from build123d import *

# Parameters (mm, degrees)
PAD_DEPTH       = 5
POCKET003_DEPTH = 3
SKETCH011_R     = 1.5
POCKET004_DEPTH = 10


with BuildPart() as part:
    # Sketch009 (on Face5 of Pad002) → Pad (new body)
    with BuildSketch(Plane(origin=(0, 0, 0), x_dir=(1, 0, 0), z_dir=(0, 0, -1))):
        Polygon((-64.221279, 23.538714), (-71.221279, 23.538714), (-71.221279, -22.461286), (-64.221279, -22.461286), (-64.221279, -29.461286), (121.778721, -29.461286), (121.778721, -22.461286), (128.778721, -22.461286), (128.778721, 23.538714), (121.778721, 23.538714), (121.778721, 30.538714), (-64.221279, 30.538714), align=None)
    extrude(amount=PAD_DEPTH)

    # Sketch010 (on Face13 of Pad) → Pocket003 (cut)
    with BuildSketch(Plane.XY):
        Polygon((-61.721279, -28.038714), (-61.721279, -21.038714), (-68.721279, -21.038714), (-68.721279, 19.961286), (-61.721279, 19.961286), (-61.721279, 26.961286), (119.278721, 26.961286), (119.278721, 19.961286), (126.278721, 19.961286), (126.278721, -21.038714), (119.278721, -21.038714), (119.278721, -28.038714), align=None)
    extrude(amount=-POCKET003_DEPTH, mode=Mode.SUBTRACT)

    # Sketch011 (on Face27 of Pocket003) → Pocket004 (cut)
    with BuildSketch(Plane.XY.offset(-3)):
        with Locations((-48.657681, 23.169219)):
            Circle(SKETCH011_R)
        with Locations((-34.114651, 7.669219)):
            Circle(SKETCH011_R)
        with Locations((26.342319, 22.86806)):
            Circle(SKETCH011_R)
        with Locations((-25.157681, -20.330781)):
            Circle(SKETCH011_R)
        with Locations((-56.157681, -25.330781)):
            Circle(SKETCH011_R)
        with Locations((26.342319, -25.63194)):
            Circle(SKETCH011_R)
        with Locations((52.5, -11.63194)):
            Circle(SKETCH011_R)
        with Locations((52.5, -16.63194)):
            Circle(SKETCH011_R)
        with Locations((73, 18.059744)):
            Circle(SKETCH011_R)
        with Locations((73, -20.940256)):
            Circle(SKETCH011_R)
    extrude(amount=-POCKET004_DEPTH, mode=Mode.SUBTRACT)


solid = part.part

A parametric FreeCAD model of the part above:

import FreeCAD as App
import Part
import Sketcher
from FreeCAD import Vector


def add_polygon(sketch, points):
    """Adds a closed chain of lines whose ends are joined by coincident constraints."""
    first, n = sketch.GeometryCount, len(points)
    for a, b in zip(points, points[1:] + points[:1]):
        sketch.addGeometry(Part.LineSegment(App.Vector(*a, 0), App.Vector(*b, 0)), False)
    for i in range(n):
        sketch.addConstraint(Sketcher.Constraint("Coincident", first + i, 2, first + (i + 1) % n, 1))

doc = App.newDocument("Part")
body = doc.addObject("PartDesign::Body", "Body")

# Sketch on XY plane
sketch1 = doc.addObject("Sketcher::SketchObject", "Sketch")
body.addObject(sketch1)
sketch1.AttachmentSupport = (doc.XY_Plane, [""])
sketch1.MapMode = "FlatFace"
add_polygon(sketch1, [(-64.221279, -23.538714), (-71.221279, -23.538714), (-71.221279, 22.461286), (-64.221279, 22.461286), (-64.221279, 29.461286), (121.778721, 29.461286), (121.778721, 22.461286), (128.778721, 22.461286), (128.778721, -23.538714), (121.778721, -23.538714), (121.778721, -30.538714), (-64.221279, -30.538714)])  # lines 0-11
sketch1.addConstraint(Sketcher.Constraint("Horizontal", 0))
sketch1.addConstraint(Sketcher.Constraint("Vertical", 1))
sketch1.addConstraint(Sketcher.Constraint("Horizontal", 2))
sketch1.addConstraint(Sketcher.Constraint("Vertical", 3))
sketch1.addConstraint(Sketcher.Constraint("Horizontal", 4))
sketch1.addConstraint(Sketcher.Constraint("Vertical", 5))
sketch1.addConstraint(Sketcher.Constraint("Horizontal", 6))
sketch1.addConstraint(Sketcher.Constraint("Vertical", 7))
sketch1.addConstraint(Sketcher.Constraint("Horizontal", 8))
sketch1.addConstraint(Sketcher.Constraint("Vertical", 9))
sketch1.addConstraint(Sketcher.Constraint("Horizontal", 10))
sketch1.addConstraint(Sketcher.Constraint("Vertical", 11))
sketch1.addConstraint(Sketcher.Constraint("Horizontal", 2, 2, 5, 2))
sketch1.addConstraint(Sketcher.Constraint("Horizontal", 0, 2, 7, 2))
sketch1.addConstraint(Sketcher.Constraint("Vertical", 5, 2, 8, 2))
sketch1.addConstraint(Sketcher.Constraint("Vertical", 3, 2, 10, 2))
sketch1.addConstraint(Sketcher.Constraint("Equal", 2, 6))
sketch1.addConstraint(Sketcher.Constraint("Equal", 8, 3))
sketch1.addConstraint(Sketcher.Constraint("Equal", 5, 9))
sketch1.addConstraint(Sketcher.Constraint("DistanceX", 0, 2, 0, 1, 7.0))
sketch1.addConstraint(Sketcher.Constraint("DistanceX", 4, 1, 4, 2, 186.0))
sketch1.addConstraint(Sketcher.Constraint("DistanceY", 1, 1, 1, 2, 46.0))
sketch1.addConstraint(Sketcher.Constraint("DistanceX", 0, 2, -1, 1, 71.221279))
sketch1.addConstraint(Sketcher.Constraint("DistanceY", 0, 2, -1, 1, 23.538714))
pad1 = doc.addObject("PartDesign::Pad", "Pad")
body.addObject(pad1)
pad1.Profile = sketch1
pad1.Length = 5
pad1.Reversed = True

# Sketch on XY plane
sketch2 = doc.addObject("Sketcher::SketchObject", "Sketch001")
body.addObject(sketch2)
sketch2.AttachmentSupport = (doc.XY_Plane, [""])
sketch2.MapMode = "FlatFace"
add_polygon(sketch2, [(-61.721279, -21.038714), (-61.721279, -28.038714), (119.278721, -28.038714), (119.278721, -21.038714), (126.278721, -21.038714), (126.278721, 19.961286), (119.278721, 19.961286), (119.278721, 26.961286), (-61.721279, 26.961286), (-61.721279, 19.961286), (-68.721279, 19.961286), (-68.721279, -21.038714)])  # lines 0-11
sketch2.addConstraint(Sketcher.Constraint("Vertical", 0))
sketch2.addConstraint(Sketcher.Constraint("Horizontal", 1))
sketch2.addConstraint(Sketcher.Constraint("Vertical", 2))
sketch2.addConstraint(Sketcher.Constraint("Horizontal", 3))
sketch2.addConstraint(Sketcher.Constraint("Vertical", 4))
sketch2.addConstraint(Sketcher.Constraint("Horizontal", 5))
sketch2.addConstraint(Sketcher.Constraint("Vertical", 6))
sketch2.addConstraint(Sketcher.Constraint("Horizontal", 7))
sketch2.addConstraint(Sketcher.Constraint("Vertical", 8))
sketch2.addConstraint(Sketcher.Constraint("Horizontal", 9))
sketch2.addConstraint(Sketcher.Constraint("Vertical", 10))
sketch2.addConstraint(Sketcher.Constraint("Horizontal", 11))
sketch2.addConstraint(Sketcher.Constraint("Horizontal", 5, 2, 8, 2))
sketch2.addConstraint(Sketcher.Constraint("Horizontal", 3, 2, 10, 2))
sketch2.addConstraint(Sketcher.Constraint("Vertical", 2, 2, 5, 2))
sketch2.addConstraint(Sketcher.Constraint("Vertical", 0, 2, 7, 2))
sketch2.addConstraint(Sketcher.Constraint("Equal", 5, 9))
sketch2.addConstraint(Sketcher.Constraint("Equal", 11, 0))
sketch2.addConstraint(Sketcher.Constraint("Equal", 2, 6))
sketch2.addConstraint(Sketcher.Constraint("DistanceX", 1, 1, 1, 2, 181.0))
sketch2.addConstraint(Sketcher.Constraint("DistanceX", 3, 1, 3, 2, 7.0))
sketch2.addConstraint(Sketcher.Constraint("DistanceY", 4, 1, 4, 2, 41.0))
sketch2.addConstraint(Sketcher.Constraint("DistanceX", 0, 2, -1, 1, 61.721279))
sketch2.addConstraint(Sketcher.Constraint("DistanceY", 0, 2, -1, 1, 28.038714))
pocket1 = doc.addObject("PartDesign::Pocket", "Pocket")
body.addObject(pocket1)
pocket1.Profile = sketch2
pocket1.Length = 3

# Sketch on XY plane
sketch3 = doc.addObject("Sketcher::SketchObject", "Sketch002")
body.addObject(sketch3)
sketch3.AttachmentSupport = (doc.XY_Plane, [""])
sketch3.MapMode = "FlatFace"
sketch3.AttachmentOffset = App.Placement(Vector(0, 0, -3), App.Rotation())
sketch3.addGeometry(Part.Circle(Vector(-48.657681, 23.169219, 0), Vector(0, 0, 1), 1.5), False)
sketch3.addGeometry(Part.Circle(Vector(-34.114651, 7.669219, 0), Vector(0, 0, 1), 1.5), False)
sketch3.addGeometry(Part.Circle(Vector(26.342319, 22.86806, 0), Vector(0, 0, 1), 1.5), False)
sketch3.addGeometry(Part.Circle(Vector(-25.157681, -20.330781, 0), Vector(0, 0, 1), 1.5), False)
sketch3.addGeometry(Part.Circle(Vector(-56.157681, -25.330781, 0), Vector(0, 0, 1), 1.5), False)
sketch3.addGeometry(Part.Circle(Vector(26.342319, -25.63194, 0), Vector(0, 0, 1), 1.5), False)
sketch3.addGeometry(Part.Circle(Vector(52.5, -11.63194, 0), Vector(0, 0, 1), 1.5), False)
sketch3.addGeometry(Part.Circle(Vector(52.5, -16.63194, 0), Vector(0, 0, 1), 1.5), False)
sketch3.addGeometry(Part.Circle(Vector(73, 18.059744, 0), Vector(0, 0, 1), 1.5), False)
sketch3.addGeometry(Part.Circle(Vector(73, -20.940256, 0), Vector(0, 0, 1), 1.5), False)
sketch3.addConstraint(Sketcher.Constraint("Equal", 0, 1))
sketch3.addConstraint(Sketcher.Constraint("Equal", 1, 2))
sketch3.addConstraint(Sketcher.Constraint("Equal", 2, 3))
sketch3.addConstraint(Sketcher.Constraint("Equal", 3, 4))
sketch3.addConstraint(Sketcher.Constraint("Equal", 4, 5))
sketch3.addConstraint(Sketcher.Constraint("Equal", 5, 6))
sketch3.addConstraint(Sketcher.Constraint("Equal", 6, 7))
sketch3.addConstraint(Sketcher.Constraint("Equal", 7, 8))
sketch3.addConstraint(Sketcher.Constraint("Equal", 8, 9))
sketch3.addConstraint(Sketcher.Constraint("Vertical", 2, 3, 5, 3))
sketch3.addConstraint(Sketcher.Constraint("Vertical", 6, 3, 7, 3))
sketch3.addConstraint(Sketcher.Constraint("Vertical", 8, 3, 9, 3))
sketch3.addConstraint(Sketcher.Constraint("Diameter", 0, 3.0))
sketch3.addConstraint(Sketcher.Constraint("DistanceX", -1, 1, 8, 3, 73.0))
sketch3.addConstraint(Sketcher.Constraint("DistanceX", 0, 3, 2, 3, 75.0))
sketch3.addConstraint(Sketcher.Constraint("DistanceY", 3, 3, 1, 3, 28.0))
sketch3.addConstraint(Sketcher.Constraint("DistanceX", 4, 3, 3, 3, 31.0))
sketch3.addConstraint(Sketcher.Constraint("DistanceY", 4, 3, 3, 3, 5.0))
sketch3.addConstraint(Sketcher.Constraint("DistanceY", 5, 3, 6, 3, 14.0))
sketch3.addConstraint(Sketcher.Constraint("DistanceY", 7, 3, 6, 3, 5.0))
sketch3.addConstraint(Sketcher.Constraint("DistanceY", 9, 3, 8, 3, 39.0))
sketch3.addConstraint(Sketcher.Constraint("DistanceX", -1, 1, 6, 3, 52.5))
sketch3.addConstraint(Sketcher.Constraint("DistanceY", 1, 3, 0, 3, 15.5))
sketch3.addConstraint(Sketcher.Constraint("DistanceX", 0, 3, 3, 3, 23.5))
sketch3.addConstraint(Sketcher.Constraint("DistanceY", 5, 3, 2, 3, 48.5))
sketch3.addConstraint(Sketcher.Constraint("DistanceX", 0, 3, -1, 1, 48.657681))
sketch3.addConstraint(Sketcher.Constraint("DistanceY", -1, 1, 0, 3, 23.169219))
sketch3.addConstraint(Sketcher.Constraint("DistanceX", 1, 3, -1, 1, 34.114651))
sketch3.addConstraint(Sketcher.Constraint("DistanceY", -1, 1, 2, 3, 22.86806))
sketch3.addConstraint(Sketcher.Constraint("DistanceY", -1, 1, 8, 3, 18.059744))
pocket2 = doc.addObject("PartDesign::Pocket", "Pocket001")
body.addObject(pocket2)
pocket2.Profile = sketch3
pocket2.Length = 10

doc.recompute()
